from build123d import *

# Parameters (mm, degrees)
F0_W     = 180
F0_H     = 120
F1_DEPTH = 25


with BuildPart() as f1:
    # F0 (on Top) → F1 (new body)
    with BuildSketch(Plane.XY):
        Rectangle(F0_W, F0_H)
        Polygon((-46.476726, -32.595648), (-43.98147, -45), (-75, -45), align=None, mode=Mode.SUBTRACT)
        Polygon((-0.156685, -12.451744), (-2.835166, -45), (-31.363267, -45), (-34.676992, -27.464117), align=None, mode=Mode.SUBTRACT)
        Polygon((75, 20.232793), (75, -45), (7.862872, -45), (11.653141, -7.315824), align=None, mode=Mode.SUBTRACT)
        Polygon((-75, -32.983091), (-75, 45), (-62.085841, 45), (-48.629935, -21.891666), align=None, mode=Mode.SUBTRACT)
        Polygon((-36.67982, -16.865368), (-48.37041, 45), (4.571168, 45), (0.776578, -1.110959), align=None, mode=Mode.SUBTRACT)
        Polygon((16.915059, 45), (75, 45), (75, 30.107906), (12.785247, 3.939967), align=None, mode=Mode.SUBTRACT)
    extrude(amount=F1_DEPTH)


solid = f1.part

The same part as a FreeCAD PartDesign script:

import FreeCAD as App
import Part
import Sketcher
from FreeCAD import Vector


def add_polygon(sketch, points):
    """Adds a closed chain of lines whose ends are joined by coincident constraints."""
    first, n = sketch.GeometryCount, len(points)
    for a, b in zip(points, points[1:] + points[:1]):
        sketch.addGeometry(Part.LineSegment(App.Vector(*a, 0), App.Vector(*b, 0)), False)
    for i in range(n):
        sketch.addConstraint(Sketcher.Constraint("Coincident", first + i, 2, first + (i + 1) % n, 1))

doc = App.newDocument("Part")
body = doc.addObject("PartDesign::Body", "Body")

# Sketch on XY plane
sketch1 = body.newObject("Sketcher::SketchObject", "Sketch")
sketch1.AttachmentSupport = (doc.getObject("XY_Plane"), [""])
sketch1.MapMode = "FlatFace"
add_polygon(sketch1, [(-90, 60), (-90, -60), (90, -60), (90, 60)])  # lines 0-3
add_polygon(sketch1, [(-75, -45), (-46.476726, -32.595648), (-43.98147, -45)])  # lines 4-6
add_polygon(sketch1, [(-34.676992, -27.464117), (-0.156685, -12.451744), (-2.835166, -45), (-31.363267, -45)])  # lines 7-10
add_polygon(sketch1, [(11.653141, -7.315824), (75, 20.232793), (75, -45), (7.862872, -45)])  # lines 11-14
add_polygon(sketch1, [(-48.629935, -21.891666), (-75, -32.983091), (-75, 45), (-62.085841, 45)])  # lines 15-18
add_polygon(sketch1, [(0.776578, -1.110959), (-36.67982, -16.865368), (-48.37041, 45), (4.571168, 45)])  # lines 19-22
add_polygon(sketch1, [(12.785247, 3.939967), (16.915059, 45), (75, 45), (75, 30.107906)])  # lines 23-26
sketch1.addConstraint(Sketcher.Constraint("Vertical", 0))
sketch1.addConstraint(Sketcher.Constraint("Horizontal", 1))
sketch1.addConstraint(Sketcher.Constraint("Vertical", 2))
sketch1.addConstraint(Sketcher.Constraint("Horizontal", 3))
sketch1.addConstraint(Sketcher.Constraint("Horizontal", 6))
sketch1.addConstraint(Sketcher.Constraint("Horizontal", 9))
sketch1.addConstraint(Sketcher.Constraint("Vertical", 12))
sketch1.addConstraint(Sketcher.Constraint("Horizontal", 13))
sketch1.addConstraint(Sketcher.Constraint("Vertical", 16))
sketch1.addConstraint(Sketcher.Constraint("Horizontal", 17))
sketch1.addConstraint(Sketcher.Constraint("Horizontal", 21))
sketch1.addConstraint(Sketcher.Constraint("Horizontal", 24))
sketch1.addConstraint(Sketcher.Constraint("Vertical", 25))
sketch1.addConstraint(Sketcher.Constraint("DistanceX", 1, 1, 1, 2, 180.0))
sketch1.addConstraint(Sketcher.Constraint("DistanceY", 0, 2, 0, 1, 120.0))
sketch1.addConstraint(Sketcher.Constraint("DistanceX", 0, 2, -1, 1, 90.0))
sketch1.addConstraint(Sketcher.Constraint("DistanceY", 0, 2, -1, 1, 60.0))
sketch1.addConstraint(Sketcher.Constraint("DistanceY", 5, 2, -1, 1, 45.0))
sketch1.addConstraint(Sketcher.Constraint("DistanceX", 6, 2, -1, 1, 75.0))
sketch1.addConstraint(Sketcher.Constraint("DistanceY", 8, 2, -1, 1, 45.0))
sketch1.addConstraint(Sketcher.Constraint("DistanceX", -1, 1, 11, 2, 75.0))
sketch1.addConstraint(Sketcher.Constraint("DistanceY", 12, 2, -1, 1, 45.0))
sketch1.addConstraint(Sketcher.Constraint("DistanceX", 15, 2, -1, 1, 75.0))
sketch1.addConstraint(Sketcher.Constraint("DistanceY", -1, 1, 16, 2, 45.0))
sketch1.addConstraint(Sketcher.Constraint("DistanceY", -1, 1, 20, 2, 45.0))
sketch1.addConstraint(Sketcher.Constraint("DistanceY", -1, 1, 23, 2, 45.0))
sketch1.addConstraint(Sketcher.Constraint("DistanceX", -1, 1, 24, 2, 75.0))
sketch1.addConstraint(Sketcher.Constraint("DistanceX", 9, 2, 9, 1, 28.528101))
sketch1.addConstraint(Sketcher.Constraint("Distance", 23, 41.267198))
sketch1.addConstraint(Sketcher.Constraint("DistanceX", 6, 2, 6, 1, 31.01853))
sketch1.addConstraint(Sketcher.Constraint("DistanceX", 13, 2, 13, 1, 67.137128))
sketch1.addConstraint(Sketcher.Constraint("DistanceX", 17, 1, 17, 2, 12.914159))
sketch1.addConstraint(Sketcher.Constraint("DistanceX", 24, 1, 24, 2, 58.084941))
sketch1.addConstraint(Sketcher.Constraint("DistanceY", 16, 1, 16, 2, 77.983091))
sketch1.addConstraint(Sketcher.Constraint("DistanceY", 18, 2, 19, 2, 5.026298))
sketch1.addConstraint(Sketcher.Constraint("Distance", 4, 31.10378))
sketch1.addConstraint(Sketcher.Constraint("Distance", 8, 32.65828))
sketch1.addConstraint(Sketcher.Constraint("Distance", 10, 17.846231))
sketch1.addConstraint(Sketcher.Constraint("Distance", 11, 69.077861))
sketch1.addConstraint(Sketcher.Constraint("Distance", 14, 37.874309))
sketch1.addConstraint(Sketcher.Constraint("Distance", 15, 28.607692))
sketch1.addConstraint(Sketcher.Constraint("Distance", 22, 46.266829))
sketch1.addConstraint(Sketcher.Constraint("DistanceX", 21, 1, 21, 2, 52.941578))
sketch1.addConstraint(Sketcher.Constraint("DistanceY", 12, 2, 12, 1, 65.232793))
sketch1.addConstraint(Sketcher.Constraint("DistanceY", 25, 2, 25, 1, 14.892094))
sketch1.addConstraint(Sketcher.Constraint("DistanceX", 10, 2, -1, 1, 34.676992))
sketch1.addConstraint(Sketcher.Constraint("DistanceX", 19, 2, -1, 1, 36.67982))
sketch1.addConstraint(Sketcher.Constraint("DistanceY", 19, 2, -1, 1, 16.865368))
sketch1.addConstraint(Sketcher.Constraint("DistanceX", 20, 2, -1, 1, 48.37041))
sketch1.addConstraint(Sketcher.Constraint("DistanceY", 22, 2, -1, 1, 1.110959))
sketch1.addConstraint(Sketcher.Constraint("DistanceX", 4, 2, 7, 2, 46.320041))
sketch1.addConstraint(Sketcher.Constraint("DistanceX", 8, 2, 7, 2, 2.678481))
sketch1.addConstraint(Sketcher.Constraint("DistanceY", 4, 2, 10, 2, 5.131531))
sketch1.addConstraint(Sketcher.Constraint("DistanceY", 14, 2, 26, 2, 11.255791))
pad1 = body.newObject("PartDesign::Pad", "Pad")
pad1.Profile = sketch1
pad1.Length = 25

doc.recompute()
